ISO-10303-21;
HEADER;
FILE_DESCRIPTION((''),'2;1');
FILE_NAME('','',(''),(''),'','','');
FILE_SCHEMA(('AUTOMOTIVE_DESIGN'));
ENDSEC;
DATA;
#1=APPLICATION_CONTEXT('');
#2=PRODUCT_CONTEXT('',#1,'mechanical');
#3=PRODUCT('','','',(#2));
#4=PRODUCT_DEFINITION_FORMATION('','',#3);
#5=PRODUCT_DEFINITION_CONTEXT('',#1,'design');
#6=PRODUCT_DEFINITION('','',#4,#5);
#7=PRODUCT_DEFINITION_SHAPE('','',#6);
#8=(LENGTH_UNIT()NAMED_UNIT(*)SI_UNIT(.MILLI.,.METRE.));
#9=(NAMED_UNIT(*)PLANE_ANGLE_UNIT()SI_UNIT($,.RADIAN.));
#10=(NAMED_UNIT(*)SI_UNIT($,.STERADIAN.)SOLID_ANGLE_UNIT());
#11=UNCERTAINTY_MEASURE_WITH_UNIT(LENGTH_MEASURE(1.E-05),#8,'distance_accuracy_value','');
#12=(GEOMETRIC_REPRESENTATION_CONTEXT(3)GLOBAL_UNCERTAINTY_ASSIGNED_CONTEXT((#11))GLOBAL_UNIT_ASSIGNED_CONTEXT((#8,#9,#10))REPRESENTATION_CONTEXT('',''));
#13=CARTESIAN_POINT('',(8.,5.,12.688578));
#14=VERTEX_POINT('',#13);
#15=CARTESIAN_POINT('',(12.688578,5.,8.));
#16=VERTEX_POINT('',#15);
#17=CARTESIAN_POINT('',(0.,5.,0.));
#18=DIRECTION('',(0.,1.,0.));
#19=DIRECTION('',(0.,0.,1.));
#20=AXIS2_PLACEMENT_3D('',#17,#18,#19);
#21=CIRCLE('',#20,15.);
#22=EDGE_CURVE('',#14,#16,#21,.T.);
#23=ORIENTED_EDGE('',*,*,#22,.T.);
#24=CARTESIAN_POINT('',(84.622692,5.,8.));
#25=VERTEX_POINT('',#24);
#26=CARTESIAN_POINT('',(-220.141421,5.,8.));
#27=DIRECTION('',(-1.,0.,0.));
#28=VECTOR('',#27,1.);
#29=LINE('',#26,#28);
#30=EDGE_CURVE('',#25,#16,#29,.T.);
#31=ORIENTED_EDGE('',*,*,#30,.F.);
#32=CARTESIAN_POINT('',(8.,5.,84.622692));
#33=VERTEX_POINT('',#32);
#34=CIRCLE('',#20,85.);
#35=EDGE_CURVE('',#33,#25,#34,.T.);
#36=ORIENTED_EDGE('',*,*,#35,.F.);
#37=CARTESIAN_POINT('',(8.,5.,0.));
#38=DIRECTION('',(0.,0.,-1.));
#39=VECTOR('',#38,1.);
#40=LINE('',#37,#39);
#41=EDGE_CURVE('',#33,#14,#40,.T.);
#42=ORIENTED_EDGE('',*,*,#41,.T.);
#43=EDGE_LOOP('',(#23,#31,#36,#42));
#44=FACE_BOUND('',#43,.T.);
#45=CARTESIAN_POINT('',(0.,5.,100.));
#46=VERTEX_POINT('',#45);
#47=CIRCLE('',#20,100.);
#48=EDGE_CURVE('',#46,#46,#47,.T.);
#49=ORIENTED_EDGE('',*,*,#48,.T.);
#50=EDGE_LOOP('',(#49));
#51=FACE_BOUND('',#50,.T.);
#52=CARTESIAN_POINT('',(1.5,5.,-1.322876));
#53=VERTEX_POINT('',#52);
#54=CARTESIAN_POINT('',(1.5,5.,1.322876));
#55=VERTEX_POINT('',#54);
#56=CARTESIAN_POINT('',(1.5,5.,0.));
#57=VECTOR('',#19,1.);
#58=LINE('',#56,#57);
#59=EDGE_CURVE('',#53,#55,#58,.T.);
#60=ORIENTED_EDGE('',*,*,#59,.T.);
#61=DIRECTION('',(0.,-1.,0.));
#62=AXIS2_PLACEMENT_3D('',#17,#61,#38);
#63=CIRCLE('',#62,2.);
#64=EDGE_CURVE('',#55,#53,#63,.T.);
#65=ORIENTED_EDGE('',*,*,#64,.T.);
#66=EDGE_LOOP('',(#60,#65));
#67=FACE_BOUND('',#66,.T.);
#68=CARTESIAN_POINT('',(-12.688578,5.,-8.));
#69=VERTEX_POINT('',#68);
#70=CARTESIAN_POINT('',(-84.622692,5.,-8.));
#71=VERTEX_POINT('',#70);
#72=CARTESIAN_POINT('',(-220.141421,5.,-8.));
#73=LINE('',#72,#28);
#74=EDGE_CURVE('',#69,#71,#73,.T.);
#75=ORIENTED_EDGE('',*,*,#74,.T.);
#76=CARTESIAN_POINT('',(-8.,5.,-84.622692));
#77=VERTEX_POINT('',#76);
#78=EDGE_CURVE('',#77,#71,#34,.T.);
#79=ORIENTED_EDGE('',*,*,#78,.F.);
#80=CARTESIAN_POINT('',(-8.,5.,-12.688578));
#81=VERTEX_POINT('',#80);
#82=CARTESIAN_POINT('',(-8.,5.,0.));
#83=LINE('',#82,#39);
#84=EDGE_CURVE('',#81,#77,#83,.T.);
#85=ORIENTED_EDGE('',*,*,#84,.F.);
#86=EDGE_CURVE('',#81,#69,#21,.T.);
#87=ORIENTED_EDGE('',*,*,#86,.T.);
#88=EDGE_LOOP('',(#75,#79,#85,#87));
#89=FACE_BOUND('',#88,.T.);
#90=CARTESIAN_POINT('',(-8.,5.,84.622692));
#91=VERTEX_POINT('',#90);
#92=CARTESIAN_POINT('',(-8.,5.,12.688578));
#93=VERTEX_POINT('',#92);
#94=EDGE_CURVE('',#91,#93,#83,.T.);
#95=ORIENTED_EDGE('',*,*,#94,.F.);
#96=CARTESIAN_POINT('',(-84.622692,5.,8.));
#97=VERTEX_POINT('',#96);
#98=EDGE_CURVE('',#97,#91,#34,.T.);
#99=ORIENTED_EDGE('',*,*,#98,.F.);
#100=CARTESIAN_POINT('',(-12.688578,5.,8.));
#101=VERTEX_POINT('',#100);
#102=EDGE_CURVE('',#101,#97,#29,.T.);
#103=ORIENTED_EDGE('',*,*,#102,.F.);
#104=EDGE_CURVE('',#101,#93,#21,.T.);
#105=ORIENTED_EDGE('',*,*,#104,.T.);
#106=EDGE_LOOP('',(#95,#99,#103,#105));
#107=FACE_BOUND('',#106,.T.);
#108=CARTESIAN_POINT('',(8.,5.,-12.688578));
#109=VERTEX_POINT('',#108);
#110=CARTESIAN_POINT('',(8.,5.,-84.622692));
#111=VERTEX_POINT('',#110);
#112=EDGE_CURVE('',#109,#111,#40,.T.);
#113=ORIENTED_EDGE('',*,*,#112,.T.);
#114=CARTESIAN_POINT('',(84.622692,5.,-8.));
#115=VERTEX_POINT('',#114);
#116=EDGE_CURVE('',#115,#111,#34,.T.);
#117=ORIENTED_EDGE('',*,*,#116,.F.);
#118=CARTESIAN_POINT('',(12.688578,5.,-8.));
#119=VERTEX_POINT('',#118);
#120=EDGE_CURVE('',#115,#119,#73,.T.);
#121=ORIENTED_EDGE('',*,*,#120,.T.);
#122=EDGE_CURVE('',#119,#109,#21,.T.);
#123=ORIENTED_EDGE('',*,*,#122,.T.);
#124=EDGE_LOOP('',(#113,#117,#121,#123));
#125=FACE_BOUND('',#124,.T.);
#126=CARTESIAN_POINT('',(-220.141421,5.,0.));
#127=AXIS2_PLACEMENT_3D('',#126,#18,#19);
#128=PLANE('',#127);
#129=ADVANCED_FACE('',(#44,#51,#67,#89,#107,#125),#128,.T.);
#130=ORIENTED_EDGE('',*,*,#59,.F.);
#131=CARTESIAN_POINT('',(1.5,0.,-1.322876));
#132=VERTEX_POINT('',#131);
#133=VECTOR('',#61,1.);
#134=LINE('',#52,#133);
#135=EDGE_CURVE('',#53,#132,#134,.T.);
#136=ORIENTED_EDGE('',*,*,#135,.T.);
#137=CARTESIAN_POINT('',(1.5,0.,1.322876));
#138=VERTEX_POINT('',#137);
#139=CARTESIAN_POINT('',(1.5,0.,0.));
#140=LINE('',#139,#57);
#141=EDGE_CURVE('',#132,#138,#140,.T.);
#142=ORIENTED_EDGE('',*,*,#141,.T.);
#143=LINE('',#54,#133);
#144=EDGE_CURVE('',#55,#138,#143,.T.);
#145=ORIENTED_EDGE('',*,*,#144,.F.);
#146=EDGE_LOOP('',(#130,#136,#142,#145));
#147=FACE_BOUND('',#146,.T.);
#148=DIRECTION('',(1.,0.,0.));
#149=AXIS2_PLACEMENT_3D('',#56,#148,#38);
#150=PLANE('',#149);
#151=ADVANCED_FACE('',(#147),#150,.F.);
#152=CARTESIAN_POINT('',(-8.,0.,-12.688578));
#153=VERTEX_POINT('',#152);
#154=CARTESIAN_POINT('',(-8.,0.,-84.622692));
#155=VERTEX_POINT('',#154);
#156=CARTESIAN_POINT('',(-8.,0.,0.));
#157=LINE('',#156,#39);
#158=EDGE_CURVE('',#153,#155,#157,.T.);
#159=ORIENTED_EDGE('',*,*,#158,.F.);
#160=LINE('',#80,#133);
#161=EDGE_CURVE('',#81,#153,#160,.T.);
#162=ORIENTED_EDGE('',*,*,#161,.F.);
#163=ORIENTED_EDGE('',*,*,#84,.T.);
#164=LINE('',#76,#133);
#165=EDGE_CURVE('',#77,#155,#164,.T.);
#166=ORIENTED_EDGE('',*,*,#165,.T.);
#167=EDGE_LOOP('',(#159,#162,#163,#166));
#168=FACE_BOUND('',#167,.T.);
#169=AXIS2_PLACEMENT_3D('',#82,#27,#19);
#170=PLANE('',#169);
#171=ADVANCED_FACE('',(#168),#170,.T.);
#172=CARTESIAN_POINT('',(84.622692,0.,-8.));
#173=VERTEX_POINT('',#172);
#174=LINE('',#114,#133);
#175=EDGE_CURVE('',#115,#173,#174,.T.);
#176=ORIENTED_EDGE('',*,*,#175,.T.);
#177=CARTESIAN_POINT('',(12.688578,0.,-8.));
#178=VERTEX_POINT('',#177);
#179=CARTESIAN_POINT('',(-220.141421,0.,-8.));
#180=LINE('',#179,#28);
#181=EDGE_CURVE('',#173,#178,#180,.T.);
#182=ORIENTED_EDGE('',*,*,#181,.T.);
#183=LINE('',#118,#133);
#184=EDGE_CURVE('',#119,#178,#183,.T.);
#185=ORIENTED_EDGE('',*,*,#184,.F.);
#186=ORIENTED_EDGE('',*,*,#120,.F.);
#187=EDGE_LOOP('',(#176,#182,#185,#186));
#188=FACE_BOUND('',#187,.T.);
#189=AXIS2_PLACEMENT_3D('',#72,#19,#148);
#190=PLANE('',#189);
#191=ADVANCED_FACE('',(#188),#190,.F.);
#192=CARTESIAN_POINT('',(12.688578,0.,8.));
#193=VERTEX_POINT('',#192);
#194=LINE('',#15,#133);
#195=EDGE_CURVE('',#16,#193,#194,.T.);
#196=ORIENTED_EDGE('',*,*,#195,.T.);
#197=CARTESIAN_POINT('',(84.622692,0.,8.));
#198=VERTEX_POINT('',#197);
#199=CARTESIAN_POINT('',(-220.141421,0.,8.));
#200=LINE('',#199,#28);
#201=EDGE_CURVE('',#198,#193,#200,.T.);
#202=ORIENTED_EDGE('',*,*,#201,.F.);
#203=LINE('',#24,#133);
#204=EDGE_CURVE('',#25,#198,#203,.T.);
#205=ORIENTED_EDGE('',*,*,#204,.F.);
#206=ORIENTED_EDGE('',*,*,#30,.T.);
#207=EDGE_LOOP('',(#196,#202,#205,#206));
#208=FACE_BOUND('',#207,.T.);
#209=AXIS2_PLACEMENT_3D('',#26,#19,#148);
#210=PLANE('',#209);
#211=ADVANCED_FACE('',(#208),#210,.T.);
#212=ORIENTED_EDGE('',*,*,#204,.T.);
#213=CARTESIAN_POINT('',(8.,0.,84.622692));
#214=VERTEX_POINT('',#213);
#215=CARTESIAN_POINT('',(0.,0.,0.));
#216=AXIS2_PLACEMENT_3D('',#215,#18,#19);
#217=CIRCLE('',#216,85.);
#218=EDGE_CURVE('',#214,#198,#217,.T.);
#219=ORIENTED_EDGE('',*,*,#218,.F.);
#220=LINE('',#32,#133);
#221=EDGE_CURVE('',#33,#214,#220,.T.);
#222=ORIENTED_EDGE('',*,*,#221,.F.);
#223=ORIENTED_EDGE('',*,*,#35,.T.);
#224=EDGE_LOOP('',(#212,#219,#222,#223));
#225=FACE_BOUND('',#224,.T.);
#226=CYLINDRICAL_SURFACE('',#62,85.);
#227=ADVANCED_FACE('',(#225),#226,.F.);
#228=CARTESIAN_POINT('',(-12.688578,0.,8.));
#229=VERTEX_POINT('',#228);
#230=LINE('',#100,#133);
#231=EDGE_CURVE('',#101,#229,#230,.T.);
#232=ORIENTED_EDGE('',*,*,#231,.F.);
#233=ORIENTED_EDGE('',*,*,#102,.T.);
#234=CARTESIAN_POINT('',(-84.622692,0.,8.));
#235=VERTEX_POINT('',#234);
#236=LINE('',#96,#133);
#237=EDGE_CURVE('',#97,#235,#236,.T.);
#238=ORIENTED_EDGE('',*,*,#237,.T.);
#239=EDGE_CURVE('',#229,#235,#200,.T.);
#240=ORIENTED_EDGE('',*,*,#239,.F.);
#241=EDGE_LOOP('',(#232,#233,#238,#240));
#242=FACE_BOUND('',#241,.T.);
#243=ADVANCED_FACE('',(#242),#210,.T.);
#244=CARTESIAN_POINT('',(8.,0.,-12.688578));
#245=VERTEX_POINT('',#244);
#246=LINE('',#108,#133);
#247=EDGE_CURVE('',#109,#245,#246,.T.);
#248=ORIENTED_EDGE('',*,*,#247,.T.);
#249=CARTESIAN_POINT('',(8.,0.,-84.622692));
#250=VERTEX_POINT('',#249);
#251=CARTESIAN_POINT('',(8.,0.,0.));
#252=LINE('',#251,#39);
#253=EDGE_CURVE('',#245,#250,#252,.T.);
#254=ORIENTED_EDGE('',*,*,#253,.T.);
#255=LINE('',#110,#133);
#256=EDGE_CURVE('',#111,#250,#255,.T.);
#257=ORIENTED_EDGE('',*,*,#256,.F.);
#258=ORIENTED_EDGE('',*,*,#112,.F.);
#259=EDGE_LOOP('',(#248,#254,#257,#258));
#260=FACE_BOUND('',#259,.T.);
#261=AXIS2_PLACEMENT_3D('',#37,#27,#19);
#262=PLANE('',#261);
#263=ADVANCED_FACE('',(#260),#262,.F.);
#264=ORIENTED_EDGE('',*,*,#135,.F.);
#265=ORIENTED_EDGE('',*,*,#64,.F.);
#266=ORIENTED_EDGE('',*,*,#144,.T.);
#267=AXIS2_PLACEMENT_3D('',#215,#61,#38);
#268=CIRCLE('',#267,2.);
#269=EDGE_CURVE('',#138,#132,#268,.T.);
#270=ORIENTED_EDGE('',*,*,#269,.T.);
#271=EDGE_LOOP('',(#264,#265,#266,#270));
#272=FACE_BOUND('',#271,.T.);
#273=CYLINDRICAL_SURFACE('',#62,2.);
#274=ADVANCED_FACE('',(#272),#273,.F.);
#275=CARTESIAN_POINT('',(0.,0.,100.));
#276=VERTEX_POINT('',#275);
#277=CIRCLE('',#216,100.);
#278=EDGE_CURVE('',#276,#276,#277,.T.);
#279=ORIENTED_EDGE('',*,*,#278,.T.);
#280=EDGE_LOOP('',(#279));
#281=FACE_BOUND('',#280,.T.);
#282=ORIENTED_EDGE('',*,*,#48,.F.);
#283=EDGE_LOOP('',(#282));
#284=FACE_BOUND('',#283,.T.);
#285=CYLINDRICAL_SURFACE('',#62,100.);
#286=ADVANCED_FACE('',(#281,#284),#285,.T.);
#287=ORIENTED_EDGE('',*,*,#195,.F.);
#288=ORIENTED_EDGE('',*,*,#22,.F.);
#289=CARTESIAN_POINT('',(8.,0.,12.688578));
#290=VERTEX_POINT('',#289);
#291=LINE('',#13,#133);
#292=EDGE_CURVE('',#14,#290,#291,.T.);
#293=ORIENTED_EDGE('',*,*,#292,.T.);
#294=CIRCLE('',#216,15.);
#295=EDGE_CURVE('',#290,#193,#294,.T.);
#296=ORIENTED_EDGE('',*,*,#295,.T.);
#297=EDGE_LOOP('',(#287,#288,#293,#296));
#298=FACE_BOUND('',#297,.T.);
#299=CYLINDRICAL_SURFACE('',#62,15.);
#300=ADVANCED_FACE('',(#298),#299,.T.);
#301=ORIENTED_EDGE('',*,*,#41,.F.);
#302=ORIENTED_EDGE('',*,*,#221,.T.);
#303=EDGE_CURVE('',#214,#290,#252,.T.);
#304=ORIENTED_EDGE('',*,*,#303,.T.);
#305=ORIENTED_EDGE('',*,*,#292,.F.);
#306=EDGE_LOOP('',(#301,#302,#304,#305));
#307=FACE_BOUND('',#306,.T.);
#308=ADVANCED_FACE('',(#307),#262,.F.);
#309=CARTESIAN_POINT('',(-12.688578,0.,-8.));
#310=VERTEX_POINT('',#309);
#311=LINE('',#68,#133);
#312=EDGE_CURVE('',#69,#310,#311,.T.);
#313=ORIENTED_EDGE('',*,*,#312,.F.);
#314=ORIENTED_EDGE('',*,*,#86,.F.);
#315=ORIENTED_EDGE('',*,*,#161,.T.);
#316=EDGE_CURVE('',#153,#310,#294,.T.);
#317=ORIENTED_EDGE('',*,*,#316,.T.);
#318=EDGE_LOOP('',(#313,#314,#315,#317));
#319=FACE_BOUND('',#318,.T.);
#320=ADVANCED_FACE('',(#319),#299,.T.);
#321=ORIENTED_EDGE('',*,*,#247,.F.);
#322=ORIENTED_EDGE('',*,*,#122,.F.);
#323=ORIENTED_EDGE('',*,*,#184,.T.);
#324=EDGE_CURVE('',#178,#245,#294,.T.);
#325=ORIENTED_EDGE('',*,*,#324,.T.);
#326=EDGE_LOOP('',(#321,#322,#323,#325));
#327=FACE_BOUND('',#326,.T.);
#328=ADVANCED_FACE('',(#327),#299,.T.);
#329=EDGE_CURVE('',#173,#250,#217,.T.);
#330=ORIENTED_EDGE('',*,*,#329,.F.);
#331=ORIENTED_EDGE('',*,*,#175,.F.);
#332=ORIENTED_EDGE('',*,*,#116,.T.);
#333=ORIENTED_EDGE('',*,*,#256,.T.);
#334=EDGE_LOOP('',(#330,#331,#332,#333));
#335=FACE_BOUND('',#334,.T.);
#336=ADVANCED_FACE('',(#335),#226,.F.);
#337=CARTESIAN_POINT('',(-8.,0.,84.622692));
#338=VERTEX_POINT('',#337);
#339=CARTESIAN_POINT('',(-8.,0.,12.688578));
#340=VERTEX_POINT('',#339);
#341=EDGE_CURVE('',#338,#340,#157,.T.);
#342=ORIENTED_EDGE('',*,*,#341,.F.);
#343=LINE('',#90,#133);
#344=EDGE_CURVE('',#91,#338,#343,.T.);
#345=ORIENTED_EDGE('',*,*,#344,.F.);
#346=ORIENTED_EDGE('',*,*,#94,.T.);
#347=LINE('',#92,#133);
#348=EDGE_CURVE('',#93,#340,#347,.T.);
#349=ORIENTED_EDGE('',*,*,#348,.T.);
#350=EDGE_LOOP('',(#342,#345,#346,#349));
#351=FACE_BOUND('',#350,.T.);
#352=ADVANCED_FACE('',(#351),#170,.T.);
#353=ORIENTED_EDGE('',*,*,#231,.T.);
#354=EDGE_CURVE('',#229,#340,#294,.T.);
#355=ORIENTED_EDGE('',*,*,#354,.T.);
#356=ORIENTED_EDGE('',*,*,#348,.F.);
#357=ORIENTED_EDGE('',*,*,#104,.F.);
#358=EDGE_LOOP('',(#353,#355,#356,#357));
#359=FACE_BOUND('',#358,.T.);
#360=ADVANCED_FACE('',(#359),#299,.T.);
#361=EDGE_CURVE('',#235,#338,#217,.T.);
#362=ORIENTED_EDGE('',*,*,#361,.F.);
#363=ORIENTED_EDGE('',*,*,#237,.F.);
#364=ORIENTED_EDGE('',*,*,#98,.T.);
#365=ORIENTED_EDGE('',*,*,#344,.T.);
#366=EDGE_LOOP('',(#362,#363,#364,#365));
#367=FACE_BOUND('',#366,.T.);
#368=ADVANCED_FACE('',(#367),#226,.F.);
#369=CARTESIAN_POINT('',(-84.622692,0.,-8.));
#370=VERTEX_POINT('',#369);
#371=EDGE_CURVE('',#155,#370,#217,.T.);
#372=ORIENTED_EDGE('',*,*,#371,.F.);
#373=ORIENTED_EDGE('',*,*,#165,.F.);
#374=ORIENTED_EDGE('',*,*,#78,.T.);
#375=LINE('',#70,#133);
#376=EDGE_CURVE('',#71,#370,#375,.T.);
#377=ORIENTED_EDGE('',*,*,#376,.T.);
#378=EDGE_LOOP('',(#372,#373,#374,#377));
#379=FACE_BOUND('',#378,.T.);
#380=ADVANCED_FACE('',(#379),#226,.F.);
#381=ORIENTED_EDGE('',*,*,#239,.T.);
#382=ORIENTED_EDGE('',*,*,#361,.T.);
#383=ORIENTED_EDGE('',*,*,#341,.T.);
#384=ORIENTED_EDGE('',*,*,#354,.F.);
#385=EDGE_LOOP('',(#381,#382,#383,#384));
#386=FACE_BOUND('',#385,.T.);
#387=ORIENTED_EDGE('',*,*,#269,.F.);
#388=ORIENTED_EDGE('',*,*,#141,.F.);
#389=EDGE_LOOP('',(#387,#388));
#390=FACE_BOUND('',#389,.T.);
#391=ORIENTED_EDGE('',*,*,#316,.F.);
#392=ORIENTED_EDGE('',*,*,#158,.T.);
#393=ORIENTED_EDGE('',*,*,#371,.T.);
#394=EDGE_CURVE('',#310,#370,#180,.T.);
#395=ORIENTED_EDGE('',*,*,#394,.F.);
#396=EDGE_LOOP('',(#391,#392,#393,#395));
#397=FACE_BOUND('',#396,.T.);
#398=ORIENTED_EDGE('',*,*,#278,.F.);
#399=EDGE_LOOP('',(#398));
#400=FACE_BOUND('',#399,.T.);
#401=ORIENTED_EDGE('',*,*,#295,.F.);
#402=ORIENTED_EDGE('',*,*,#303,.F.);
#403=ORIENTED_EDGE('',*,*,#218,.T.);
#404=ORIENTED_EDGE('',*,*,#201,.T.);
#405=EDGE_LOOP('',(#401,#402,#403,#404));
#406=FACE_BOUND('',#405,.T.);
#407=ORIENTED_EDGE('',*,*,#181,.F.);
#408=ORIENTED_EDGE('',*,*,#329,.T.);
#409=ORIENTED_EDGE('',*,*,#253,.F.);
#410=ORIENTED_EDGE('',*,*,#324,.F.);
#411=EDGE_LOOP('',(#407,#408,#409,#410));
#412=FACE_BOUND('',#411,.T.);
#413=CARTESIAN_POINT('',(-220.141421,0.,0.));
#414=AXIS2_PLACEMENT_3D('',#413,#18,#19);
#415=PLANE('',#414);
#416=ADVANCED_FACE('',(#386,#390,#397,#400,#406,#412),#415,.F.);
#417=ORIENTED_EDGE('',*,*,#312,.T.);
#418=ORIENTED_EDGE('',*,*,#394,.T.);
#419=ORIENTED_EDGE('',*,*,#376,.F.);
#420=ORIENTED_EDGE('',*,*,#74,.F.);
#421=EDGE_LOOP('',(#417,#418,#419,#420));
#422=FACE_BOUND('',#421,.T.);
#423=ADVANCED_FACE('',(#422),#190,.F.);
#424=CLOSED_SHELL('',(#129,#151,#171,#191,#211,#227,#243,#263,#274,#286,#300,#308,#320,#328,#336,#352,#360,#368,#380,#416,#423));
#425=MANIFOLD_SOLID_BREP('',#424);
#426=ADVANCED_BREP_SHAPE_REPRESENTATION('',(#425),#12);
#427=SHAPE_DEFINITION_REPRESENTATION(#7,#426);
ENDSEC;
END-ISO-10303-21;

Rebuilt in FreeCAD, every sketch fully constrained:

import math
import FreeCAD as App
import Part
import Sketcher
from FreeCAD import Vector

doc = App.newDocument("Part")
body = doc.addObject("PartDesign::Body", "Body")

# Sketch on XZ plane
sketch1 = body.newObject("Sketcher::SketchObject", "Sketch")
sketch1.AttachmentSupport = (doc.getObject("XZ_Plane"), [""])
sketch1.MapMode = "FlatFace"
sketch1.addGeometry([
    Part.Circle(Vector(0, 0, 0), Vector(0, 0, 1), 100),  # 0
    Part.ArcOfCircle(Part.Circle(Vector(0, 0, 0), Vector(0, 0, 1), 15), math.radians(122), math.radians(148)),  # 1
    Part.LineSegment(Vector(-8, 13, 0), Vector(-8, 85, 0)),  # 2
    Part.ArcOfCircle(Part.Circle(Vector(0, 0, 0), Vector(0, 0, 1), 85), math.radians(95), math.radians(175)),  # 3
    Part.LineSegment(Vector(-85, 8, 0), Vector(-13, 8, 0)),  # 4
    Part.ArcOfCircle(Part.Circle(Vector(0, 0, 0), Vector(0, 0, 1), 15), math.radians(32), math.radians(58)),  # 5
    Part.LineSegment(Vector(13, 8, 0), Vector(85, 8, 0)),  # 6
    Part.ArcOfCircle(Part.Circle(Vector(0, 0, 0), Vector(0, 0, 1), 85), math.radians(5), math.radians(85)),  # 7
    Part.LineSegment(Vector(8, 85, 0), Vector(8, 13, 0)),  # 8
    Part.ArcOfCircle(Part.Circle(Vector(0, 0, 0), Vector(0, 0, 1), 85), math.radians(-175), math.radians(-95)),  # 9
    Part.LineSegment(Vector(-8, -85, 0), Vector(-8, -13, 0)),  # 10
    Part.ArcOfCircle(Part.Circle(Vector(0, 0, 0), Vector(0, 0, 1), 15), math.radians(-148), math.radians(-122)),  # 11
    Part.LineSegment(Vector(-13, -8, 0), Vector(-85, -8, 0)),  # 12
    Part.LineSegment(Vector(8, -13, 0), Vector(8, -85, 0)),  # 13
    Part.ArcOfCircle(Part.Circle(Vector(0, 0, 0), Vector(0, 0, 1), 85), math.radians(-85), math.radians(-5)),  # 14
    Part.LineSegment(Vector(85, -8, 0), Vector(13, -8, 0)),  # 15
    Part.ArcOfCircle(Part.Circle(Vector(0, 0, 0), Vector(0, 0, 1), 15), math.radians(-58), math.radians(-32)),  # 16
], False)
sketch1.addConstraint([
    Sketcher.Constraint("Coincident", 1, 1, 2, 1),
    Sketcher.Constraint("Coincident", 2, 2, 3, 1),
    Sketcher.Constraint("Coincident", 3, 2, 4, 1),
    Sketcher.Constraint("Coincident", 4, 2, 1, 2),
    Sketcher.Constraint("Coincident", 5, 1, 6, 1),
    Sketcher.Constraint("Coincident", 6, 2, 7, 1),
    Sketcher.Constraint("Coincident", 7, 2, 8, 1),
    Sketcher.Constraint("Coincident", 8, 2, 5, 2),
    Sketcher.Constraint("Coincident", 9, 2, 10, 1),
    Sketcher.Constraint("Coincident", 10, 2, 11, 2),
    Sketcher.Constraint("Coincident", 11, 1, 12, 1),
    Sketcher.Constraint("Coincident", 12, 2, 9, 1),
    Sketcher.Constraint("Coincident", 13, 2, 14, 1),
    Sketcher.Constraint("Coincident", 14, 2, 15, 1),
    Sketcher.Constraint("Coincident", 15, 2, 16, 2),
    Sketcher.Constraint("Coincident", 16, 1, 13, 1),
    Sketcher.Constraint("Vertical", 2),
    Sketcher.Constraint("Horizontal", 4),
    Sketcher.Constraint("Horizontal", 6),
    Sketcher.Constraint("Vertical", 8),
    Sketcher.Constraint("Vertical", 10),
    Sketcher.Constraint("Horizontal", 12),
    Sketcher.Constraint("Vertical", 13),
    Sketcher.Constraint("Horizontal", 15),
    Sketcher.Constraint("Coincident", 0, 3, -1, 1),
    Sketcher.Constraint("Coincident", 1, 3, -1, 1),
    Sketcher.Constraint("Coincident", 3, 3, -1, 1),
    Sketcher.Constraint("Coincident", 5, 3, -1, 1),
    Sketcher.Constraint("Coincident", 7, 3, -1, 1),
    Sketcher.Constraint("Coincident", 9, 3, -1, 1),
    Sketcher.Constraint("Coincident", 11, 3, -1, 1),
    Sketcher.Constraint("Coincident", 14, 3, -1, 1),
    Sketcher.Constraint("Coincident", 16, 3, -1, 1),
    Sketcher.Constraint("Equal", 1, 5),
    Sketcher.Constraint("Equal", 3, 7),
    Sketcher.Constraint("Equal", 7, 9),
    Sketcher.Constraint("Equal", 5, 11),
    Sketcher.Constraint("Equal", 9, 14),
    Sketcher.Constraint("Equal", 11, 16),
    Sketcher.Constraint("Horizontal", 4, 2, 5, 1),
    Sketcher.Constraint("Horizontal", 2, 2, 7, 2),
    Sketcher.Constraint("Horizontal", 9, 2, 13, 2),
    Sketcher.Constraint("Horizontal", 12, 2, 14, 2),
    Sketcher.Constraint("Vertical", 2, 2, 9, 2),
    Sketcher.Constraint("Vertical", 4, 2, 11, 1),
    Sketcher.Constraint("Equal", 15, 2),
    Sketcher.Constraint("Diameter", 0, 200.0),
    Sketcher.Constraint("Radius", 1, 15.0),
    Sketcher.Constraint("Radius", 3, 85.0),
    Sketcher.Constraint("DistanceX", 1, 1, -1, 1, 8.0),
])
pad1 = body.newObject("PartDesign::Pad", "Pad")
pad1.Profile = sketch1
pad1.Length = 5
pad1.Reversed = True

# Sketch on XZ plane
sketch2 = body.newObject("Sketcher::SketchObject", "Sketch001")
sketch2.AttachmentSupport = (doc.getObject("XZ_Plane"), [""])
sketch2.MapMode = "FlatFace"
sketch2.addGeometry([
    Part.ArcOfCircle(Part.Circle(Vector(0, 0, 0), Vector(0, 0, 1), 2), math.radians(41), math.radians(319)),
    Part.LineSegment(Vector(1.5, -1.3, 0), Vector(1.5, 1.3, 0)),
], False)
sketch2.addConstraint([
    Sketcher.Constraint("Coincident", 0, 1, 1, 2),
    Sketcher.Constraint("Coincident", 1, 1, 0, 2),
    Sketcher.Constraint("Vertical", 1),
    Sketcher.Constraint("Coincident", 0, 3, -1, 1),
    Sketcher.Constraint("Radius", 0, 2.0),
    Sketcher.Constraint("DistanceX", -1, 1, 0, 1, 1.5),
])
pocket1 = body.newObject("PartDesign::Pocket", "Pocket")
pocket1.Profile = sketch2
pocket1.Length = 5

doc.recompute()
